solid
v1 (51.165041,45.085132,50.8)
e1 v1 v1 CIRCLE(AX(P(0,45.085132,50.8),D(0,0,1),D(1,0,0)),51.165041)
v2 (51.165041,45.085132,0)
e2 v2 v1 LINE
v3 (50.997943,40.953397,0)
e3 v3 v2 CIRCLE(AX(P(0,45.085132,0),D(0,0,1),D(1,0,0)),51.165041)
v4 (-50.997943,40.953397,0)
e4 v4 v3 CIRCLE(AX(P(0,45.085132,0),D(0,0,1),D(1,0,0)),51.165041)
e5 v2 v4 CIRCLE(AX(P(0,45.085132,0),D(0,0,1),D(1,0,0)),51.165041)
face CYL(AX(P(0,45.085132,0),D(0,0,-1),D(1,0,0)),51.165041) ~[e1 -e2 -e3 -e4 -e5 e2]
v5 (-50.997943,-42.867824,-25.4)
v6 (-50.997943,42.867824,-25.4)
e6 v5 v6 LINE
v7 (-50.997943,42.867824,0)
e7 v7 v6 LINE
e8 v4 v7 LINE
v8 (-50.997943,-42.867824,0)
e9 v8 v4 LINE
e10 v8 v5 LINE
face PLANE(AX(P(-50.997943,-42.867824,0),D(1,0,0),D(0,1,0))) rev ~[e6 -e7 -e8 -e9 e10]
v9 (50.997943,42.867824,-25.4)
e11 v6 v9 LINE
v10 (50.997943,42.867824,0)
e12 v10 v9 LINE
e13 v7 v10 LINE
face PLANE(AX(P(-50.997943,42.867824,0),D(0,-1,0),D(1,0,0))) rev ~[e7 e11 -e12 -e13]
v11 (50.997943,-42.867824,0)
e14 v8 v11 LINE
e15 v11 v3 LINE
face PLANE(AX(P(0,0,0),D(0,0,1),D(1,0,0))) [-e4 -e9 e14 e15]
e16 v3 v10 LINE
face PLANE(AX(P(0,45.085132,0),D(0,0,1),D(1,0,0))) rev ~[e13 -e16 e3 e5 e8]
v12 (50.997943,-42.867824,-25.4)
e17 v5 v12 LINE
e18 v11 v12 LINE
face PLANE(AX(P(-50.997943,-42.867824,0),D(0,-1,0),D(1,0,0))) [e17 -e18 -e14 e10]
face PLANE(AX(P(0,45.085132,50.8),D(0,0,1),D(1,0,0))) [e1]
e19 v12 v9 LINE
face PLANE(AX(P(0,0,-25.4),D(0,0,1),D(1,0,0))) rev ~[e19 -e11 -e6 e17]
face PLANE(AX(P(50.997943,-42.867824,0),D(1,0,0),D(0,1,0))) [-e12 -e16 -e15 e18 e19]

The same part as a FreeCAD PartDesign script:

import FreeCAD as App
import Part
import Sketcher
Q = App.Units.Quantity


def add_polygon(sketch, points):
    """Adds a closed chain of lines whose ends are joined by coincident constraints."""
    first, n = sketch.GeometryCount, len(points)
    for a, b in zip(points, points[1:] + points[:1]):
        sketch.addGeometry(Part.LineSegment(App.Vector(*a, 0), App.Vector(*b, 0)), False)
    for i in range(n):
        sketch.addConstraint(Sketcher.Constraint("Coincident", first + i, 2, first + (i + 1) % n, 1))

doc = App.newDocument("Part")
params = doc.addObject("Spreadsheet::Sheet", "Params")
for row, (alias, value) in enumerate([
    ("pad1_length", "2 in"),
    ("pad2_length", "1 in"),
], start=1):
    params.set(f"A{row}", alias)
    params.set(f"B{row}", "=" + value)
    params.setAlias(f"B{row}", alias)

body = doc.addObject("PartDesign::Body", "Body")

# Sketch on XY plane
sketch1 = body.newObject("Sketcher::SketchObject", "Sketch")
sketch1.AttachmentSupport = (doc.getObject("XY_Plane"), [""])
sketch1.MapMode = "FlatFace"
sketch1.addGeometry(Part.Circle(App.Vector(0, 45.085132, 0), App.Vector(0, 0, 1), 51.165041), False)
sketch1.addConstraint([
    Sketcher.Constraint("PointOnObject", 0, 3, -2),
    Sketcher.Constraint("Diameter", 0, Q("102.330082 mm")),
    Sketcher.Constraint("DistanceY", -1, 1, 0, 3, Q("45.085132 mm")),
])
pad1 = body.newObject("PartDesign::Pad", "Pad")
pad1.Profile = sketch1
pad1.setExpression("Length", "Params.pad1_length")

# Sketch on XY plane
sketch2 = body.newObject("Sketcher::SketchObject", "Sketch001")
sketch2.AttachmentSupport = (doc.getObject("XY_Plane"), [""])
sketch2.MapMode = "FlatFace"
add_polygon(sketch2, [(-50.997943, 42.867824), (-50.997943, -42.867824), (50.997943, -42.867824), (50.997943, 42.867824)])  # lines 0-3
sketch2.addConstraint([
    Sketcher.Constraint("Vertical", 0),
    Sketcher.Constraint("Horizontal", 1),
    Sketcher.Constraint("Vertical", 2),
    Sketcher.Constraint("Horizontal", 3),
    Sketcher.Constraint("Symmetric", 0, 2, 2, 2, -1, 1),
    Sketcher.Constraint("DistanceX", 1, 1, 1, 2, Q("101.995886 mm")),
    Sketcher.Constraint("DistanceY", 0, 2, 0, 1, Q("85.735648 mm")),
])
pad2 = body.newObject("PartDesign::Pad", "Pad001")
pad2.Profile = sketch2
pad2.setExpression("Length", "Params.pad2_length")
pad2.Reversed = True

doc.recompute()
